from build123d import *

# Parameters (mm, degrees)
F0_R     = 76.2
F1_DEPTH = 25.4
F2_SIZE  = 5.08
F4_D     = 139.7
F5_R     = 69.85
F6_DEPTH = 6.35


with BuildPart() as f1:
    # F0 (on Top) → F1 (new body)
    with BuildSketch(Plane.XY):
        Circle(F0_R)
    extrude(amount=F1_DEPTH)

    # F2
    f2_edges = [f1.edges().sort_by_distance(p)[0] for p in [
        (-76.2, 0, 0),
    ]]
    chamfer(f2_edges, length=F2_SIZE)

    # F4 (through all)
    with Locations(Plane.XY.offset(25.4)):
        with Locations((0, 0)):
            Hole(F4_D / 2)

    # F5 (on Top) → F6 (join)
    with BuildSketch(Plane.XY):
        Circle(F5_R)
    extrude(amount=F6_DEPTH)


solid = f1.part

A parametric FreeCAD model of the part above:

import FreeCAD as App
import Part
import Sketcher
Q = App.Units.Quantity


def edges_at(feature, points):
    """Names of the edges that pass closest to the given points."""
    edges = feature.Shape.Edges
    near = lambda p: min(range(len(edges)), key=lambda i: edges[i].distToShape(Part.Vertex(*p))[0])
    return sorted({f"Edge{near(p) + 1}" for p in points})

doc = App.newDocument("Part")
body = doc.addObject("PartDesign::Body", "Body")

# Sketch on XY plane
sketch1 = doc.addObject("Sketcher::SketchObject", "Sketch")
body.addObject(sketch1)
sketch1.AttachmentSupport = (doc.XY_Plane, [""])
sketch1.MapMode = "FlatFace"
sketch1.addGeometry(Part.Circle(App.Vector(0, 0, 0), App.Vector(0, 0, 1), 76.2), False)
sketch1.addConstraint(Sketcher.Constraint("Coincident", 0, 3, -1, 1))
sketch1.addConstraint(Sketcher.Constraint("Diameter", 0, Q("6 in")))
pad1 = doc.addObject("PartDesign::Pad", "Pad")
body.addObject(pad1)
pad1.Profile = sketch1
pad1.Length = Q("1 in")
doc.recompute()

chamfer = doc.addObject("PartDesign::Chamfer", "Chamfer")
body.addObject(chamfer)
chamfer.Base = (pad1, edges_at(pad1, [(-76.2, 0, 0)]))
chamfer.Size = Q("0.2 in")

# Sketch on XY plane
sketch2 = doc.addObject("Sketcher::SketchObject", "Sketch001")
body.addObject(sketch2)
sketch2.AttachmentSupport = (doc.XY_Plane, [""])
sketch2.MapMode = "FlatFace"
sketch2.AttachmentOffset = App.Placement(App.Vector(0, 0, 1 * 25.4), App.Rotation())
sketch2.addGeometry(Part.Circle(App.Vector(0, 0, 0), App.Vector(0, 0, 1), 69.85), False)
sketch2.addConstraint(Sketcher.Constraint("Coincident", 0, 3, -1, 1))
sketch2.addConstraint(Sketcher.Constraint("Diameter", 0, Q("5.5 in")))
doc.recompute()
hole = doc.addObject("PartDesign::Hole", "Hole")
body.addObject(hole)
hole.Profile = sketch2
hole.ThreadType = "None"
hole.Diameter = Q("5.5 in")
hole.DepthType = "ThroughAll"

# Sketch on XY plane
sketch3 = doc.addObject("Sketcher::SketchObject", "Sketch002")
body.addObject(sketch3)
sketch3.AttachmentSupport = (doc.XY_Plane, [""])
sketch3.MapMode = "FlatFace"
sketch3.addGeometry(Part.Circle(App.Vector(0, 0, 0), App.Vector(0, 0, 1), 69.85), False)
sketch3.addConstraint(Sketcher.Constraint("Coincident", 0, 3, -1, 1))
sketch3.addConstraint(Sketcher.Constraint("Diameter", 0, Q("5.5 in")))
pad2 = doc.addObject("PartDesign::Pad", "Pad001")
body.addObject(pad2)
pad2.Profile = sketch3
pad2.Length = Q("0.25 in")

doc.recompute()
